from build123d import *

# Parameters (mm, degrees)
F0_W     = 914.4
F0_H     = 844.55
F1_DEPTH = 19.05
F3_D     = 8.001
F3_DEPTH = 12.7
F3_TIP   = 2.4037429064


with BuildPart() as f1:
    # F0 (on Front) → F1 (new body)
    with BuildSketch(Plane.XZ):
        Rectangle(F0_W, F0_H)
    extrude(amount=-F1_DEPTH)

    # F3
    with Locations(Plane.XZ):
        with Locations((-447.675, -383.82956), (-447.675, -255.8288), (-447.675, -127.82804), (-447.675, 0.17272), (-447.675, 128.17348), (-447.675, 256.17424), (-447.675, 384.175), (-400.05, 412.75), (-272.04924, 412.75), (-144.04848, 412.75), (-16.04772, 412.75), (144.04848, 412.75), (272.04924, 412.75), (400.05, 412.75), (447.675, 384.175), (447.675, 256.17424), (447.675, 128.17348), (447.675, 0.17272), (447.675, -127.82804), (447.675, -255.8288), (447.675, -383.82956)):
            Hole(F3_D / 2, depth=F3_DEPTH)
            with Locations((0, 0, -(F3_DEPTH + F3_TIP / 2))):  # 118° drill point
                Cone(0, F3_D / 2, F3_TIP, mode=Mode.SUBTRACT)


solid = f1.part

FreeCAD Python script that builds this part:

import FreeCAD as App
import Part
import Sketcher
Q = App.Units.Quantity

doc = App.newDocument("Part")
params = doc.addObject("Spreadsheet::Sheet", "Params")
for row, (alias, value) in enumerate([
    ("sketch1_width", "36 in"),
    ("sketch1_height", "33.25 in"),
    ("pad1_length", "0.75 in"),
    ("sketch2_diameter", "0.315 in"),
    ("hole_diameter", "0.315 in"),
    ("hole_depth", "0.5 in"),
], start=1):
    params.set(f"A{row}", alias)
    params.set(f"B{row}", "=" + value)
    params.setAlias(f"B{row}", alias)

body = doc.addObject("PartDesign::Body", "Body")

# Sketch on XZ plane
sketch1 = doc.addObject("Sketcher::SketchObject", "Sketch")
body.addObject(sketch1)
sketch1.AttachmentSupport = (doc.XZ_Plane, [""])
sketch1.MapMode = "FlatFace"
sketch1.addGeometry(Part.LineSegment(App.Vector(-457, 422, 0), App.Vector(-457, -422, 0)), False)
sketch1.addGeometry(Part.LineSegment(App.Vector(-457, -422, 0), App.Vector(457, -422, 0)), False)
sketch1.addGeometry(Part.LineSegment(App.Vector(457, -422, 0), App.Vector(457, 422, 0)), False)
sketch1.addGeometry(Part.LineSegment(App.Vector(457, 422, 0), App.Vector(-457, 422, 0)), False)
sketch1.addConstraint(Sketcher.Constraint("Coincident", 0, 2, 1, 1))
sketch1.addConstraint(Sketcher.Constraint("Coincident", 1, 2, 2, 1))
sketch1.addConstraint(Sketcher.Constraint("Coincident", 2, 2, 3, 1))
sketch1.addConstraint(Sketcher.Constraint("Coincident", 3, 2, 0, 1))
sketch1.addConstraint(Sketcher.Constraint("Vertical", 0))
sketch1.addConstraint(Sketcher.Constraint("Horizontal", 1))
sketch1.addConstraint(Sketcher.Constraint("Vertical", 2))
sketch1.addConstraint(Sketcher.Constraint("Horizontal", 3))
sketch1.addConstraint(Sketcher.Constraint("Symmetric", 0, 2, 2, 2, -1, 1))
sketch1.addConstraint(Sketcher.Constraint("DistanceX", 1, 1, 1, 2, Q("36 in")))
sketch1.addConstraint(Sketcher.Constraint("DistanceY", 0, 2, 0, 1, Q("33.25 in")))
sketch1.setExpression("Constraints[9]", "Params.sketch1_width")
sketch1.setExpression("Constraints[10]", "Params.sketch1_height")
pad1 = doc.addObject("PartDesign::Pad", "Pad")
body.addObject(pad1)
pad1.Profile = sketch1
pad1.setExpression("Length", "Params.pad1_length")
pad1.Reversed = True

# Sketch on XZ plane
sketch2 = doc.addObject("Sketcher::SketchObject", "Sketch001")
body.addObject(sketch2)
sketch2.AttachmentSupport = (doc.XZ_Plane, [""])
sketch2.MapMode = "FlatFace"
sketch2.addGeometry(Part.Circle(App.Vector(-447.7, -383.8, 0), App.Vector(0, 0, 1), 4), False)
sketch2.addGeometry(Part.Circle(App.Vector(-447.7, -255.8, 0), App.Vector(0, 0, 1), 4), False)
sketch2.addGeometry(Part.Circle(App.Vector(-447.7, -127.8, 0), App.Vector(0, 0, 1), 4), False)
sketch2.addGeometry(Part.Circle(App.Vector(-447.7, 0.2, 0), App.Vector(0, 0, 1), 4), False)
sketch2.addGeometry(Part.Circle(App.Vector(-447.7, 128.2, 0), App.Vector(0, 0, 1), 4), False)
sketch2.addGeometry(Part.Circle(App.Vector(-447.7, 256.2, 0), App.Vector(0, 0, 1), 4), False)
sketch2.addGeometry(Part.Circle(App.Vector(-447.7, 384.2, 0), App.Vector(0, 0, 1), 4), False)
sketch2.addGeometry(Part.Circle(App.Vector(-400.1, 412.8, 0), App.Vector(0, 0, 1), 4), False)
sketch2.addGeometry(Part.Circle(App.Vector(-272, 412.8, 0), App.Vector(0, 0, 1), 4), False)
sketch2.addGeometry(Part.Circle(App.Vector(-144, 412.8, 0), App.Vector(0, 0, 1), 4), False)
sketch2.addGeometry(Part.Circle(App.Vector(-16, 412.8, 0), App.Vector(0, 0, 1), 4), False)
sketch2.addGeometry(Part.Circle(App.Vector(144, 412.8, 0), App.Vector(0, 0, 1), 4), False)
sketch2.addGeometry(Part.Circle(App.Vector(272, 412.8, 0), App.Vector(0, 0, 1), 4), False)
sketch2.addGeometry(Part.Circle(App.Vector(400.1, 412.8, 0), App.Vector(0, 0, 1), 4), False)
sketch2.addGeometry(Part.Circle(App.Vector(447.7, 384.2, 0), App.Vector(0, 0, 1), 4), False)
sketch2.addGeometry(Part.Circle(App.Vector(447.7, 256.2, 0), App.Vector(0, 0, 1), 4), False)
sketch2.addGeometry(Part.Circle(App.Vector(447.7, 128.2, 0), App.Vector(0, 0, 1), 4), False)
sketch2.addGeometry(Part.Circle(App.Vector(447.7, 0.2, 0), App.Vector(0, 0, 1), 4), False)
sketch2.addGeometry(Part.Circle(App.Vector(447.7, -127.8, 0), App.Vector(0, 0, 1), 4), False)
sketch2.addGeometry(Part.Circle(App.Vector(447.7, -255.8, 0), App.Vector(0, 0, 1), 4), False)
sketch2.addGeometry(Part.Circle(App.Vector(447.7, -383.8, 0), App.Vector(0, 0, 1), 4), False)
sketch2.addConstraint(Sketcher.Constraint("Equal", 0, 1))
sketch2.addConstraint(Sketcher.Constraint("Equal", 1, 2))
sketch2.addConstraint(Sketcher.Constraint("Equal", 2, 3))
sketch2.addConstraint(Sketcher.Constraint("Equal", 3, 4))
sketch2.addConstraint(Sketcher.Constraint("Equal", 4, 5))
sketch2.addConstraint(Sketcher.Constraint("Equal", 5, 6))
sketch2.addConstraint(Sketcher.Constraint("Equal", 6, 7))
sketch2.addConstraint(Sketcher.Constraint("Equal", 7, 8))
sketch2.addConstraint(Sketcher.Constraint("Equal", 8, 9))
sketch2.addConstraint(Sketcher.Constraint("Equal", 9, 10))
sketch2.addConstraint(Sketcher.Constraint("Equal", 10, 11))
sketch2.addConstraint(Sketcher.Constraint("Equal", 11, 12))
sketch2.addConstraint(Sketcher.Constraint("Equal", 12, 13))
sketch2.addConstraint(Sketcher.Constraint("Equal", 13, 14))
sketch2.addConstraint(Sketcher.Constraint("Equal", 14, 15))
sketch2.addConstraint(Sketcher.Constraint("Equal", 15, 16))
sketch2.addConstraint(Sketcher.Constraint("Equal", 16, 17))
sketch2.addConstraint(Sketcher.Constraint("Equal", 17, 18))
sketch2.addConstraint(Sketcher.Constraint("Equal", 18, 19))
sketch2.addConstraint(Sketcher.Constraint("Equal", 19, 20))
sketch2.addConstraint(Sketcher.Constraint("Symmetric", 9, 3, 11, 3, -2))
sketch2.addConstraint(Sketcher.Constraint("Symmetric", 8, 3, 12, 3, -2))
sketch2.addConstraint(Sketcher.Constraint("Symmetric", 7, 3, 13, 3, -2))
sketch2.addConstraint(Sketcher.Constraint("Symmetric", 6, 3, 14, 3, -2))
sketch2.addConstraint(Sketcher.Constraint("Symmetric", 5, 3, 15, 3, -2))
sketch2.addConstraint(Sketcher.Constraint("Symmetric", 4, 3, 16, 3, -2))
sketch2.addConstraint(Sketcher.Constraint("Symmetric", 3, 3, 17, 3, -2))
sketch2.addConstraint(Sketcher.Constraint("Symmetric", 2, 3, 18, 3, -2))
sketch2.addConstraint(Sketcher.Constraint("Symmetric", 1, 3, 19, 3, -2))
sketch2.addConstraint(Sketcher.Constraint("Symmetric", 0, 3, 20, 3, -2))
sketch2.addConstraint(Sketcher.Constraint("Horizontal", 7, 3, 8, 3))
sketch2.addConstraint(Sketcher.Constraint("Horizontal", 8, 3, 9, 3))
sketch2.addConstraint(Sketcher.Constraint("Horizontal", 9, 3, 10, 3))
sketch2.addConstraint(Sketcher.Constraint("Vertical", 0, 3, 1, 3))
sketch2.addConstraint(Sketcher.Constraint("Vertical", 1, 3, 2, 3))
sketch2.addConstraint(Sketcher.Constraint("Vertical", 2, 3, 3, 3))
sketch2.addConstraint(Sketcher.Constraint("Vertical", 3, 3, 4, 3))
sketch2.addConstraint(Sketcher.Constraint("Vertical", 4, 3, 5, 3))
sketch2.addConstraint(Sketcher.Constraint("Vertical", 5, 3, 6, 3))
sketch2.addConstraint(Sketcher.Constraint("Diameter", 0, Q("0.315 in")))
sketch2.addConstraint(Sketcher.Constraint("DistanceX", 7, 3, -1, 1, Q("15.75 in")))
sketch2.addConstraint(Sketcher.Constraint("DistanceY", -1, 1, 7, 3, Q("16.25 in")))
sketch2.addConstraint(Sketcher.Constraint("DistanceX", 0, 3, -1, 1, Q("17.625 in")))
sketch2.addConstraint(Sketcher.Constraint("DistanceY", 1, 3, -1, 1, Q("10.072 in")))
sketch2.addConstraint(Sketcher.Constraint("DistanceY", -1, 1, 6, 3, Q("15.125 in")))
sketch2.addConstraint(Sketcher.Constraint("DistanceY", 0, 3, 5, 3, Q("25.197 in")))
sketch2.addConstraint(Sketcher.Constraint("DistanceX", 10, 3, 11, 3, Q("6.303 in")))
sketch2.addConstraint(Sketcher.Constraint("DistanceY", 0, 3, -1, 1, Q("15.1114 in")))
sketch2.addConstraint(Sketcher.Constraint("DistanceY", 2, 3, -1, 1, Q("5.0326 in")))
sketch2.addConstraint(Sketcher.Constraint("DistanceY", -1, 1, 3, 3, Q("0.0068 in")))
sketch2.addConstraint(Sketcher.Constraint("DistanceY", -1, 1, 4, 3, Q("5.0462 in")))
sketch2.addConstraint(Sketcher.Constraint("DistanceX", 8, 3, -1, 1, Q("10.7106 in")))
sketch2.addConstraint(Sketcher.Constraint("DistanceX", 9, 3, -1, 1, Q("5.6712 in")))
sketch2.setExpression("Constraints[39]", "Params.sketch2_diameter")
doc.recompute()
hole = doc.addObject("PartDesign::Hole", "Hole")
body.addObject(hole)
hole.Profile = sketch2
hole.ThreadType = "None"
hole.setExpression("Diameter", "Params.hole_diameter")
hole.DepthType = "Dimension"
hole.setExpression("Depth", "Params.hole_depth")
hole.DrillPoint = "Angled"
hole.DrillPointAngle = 118

doc.recompute()
